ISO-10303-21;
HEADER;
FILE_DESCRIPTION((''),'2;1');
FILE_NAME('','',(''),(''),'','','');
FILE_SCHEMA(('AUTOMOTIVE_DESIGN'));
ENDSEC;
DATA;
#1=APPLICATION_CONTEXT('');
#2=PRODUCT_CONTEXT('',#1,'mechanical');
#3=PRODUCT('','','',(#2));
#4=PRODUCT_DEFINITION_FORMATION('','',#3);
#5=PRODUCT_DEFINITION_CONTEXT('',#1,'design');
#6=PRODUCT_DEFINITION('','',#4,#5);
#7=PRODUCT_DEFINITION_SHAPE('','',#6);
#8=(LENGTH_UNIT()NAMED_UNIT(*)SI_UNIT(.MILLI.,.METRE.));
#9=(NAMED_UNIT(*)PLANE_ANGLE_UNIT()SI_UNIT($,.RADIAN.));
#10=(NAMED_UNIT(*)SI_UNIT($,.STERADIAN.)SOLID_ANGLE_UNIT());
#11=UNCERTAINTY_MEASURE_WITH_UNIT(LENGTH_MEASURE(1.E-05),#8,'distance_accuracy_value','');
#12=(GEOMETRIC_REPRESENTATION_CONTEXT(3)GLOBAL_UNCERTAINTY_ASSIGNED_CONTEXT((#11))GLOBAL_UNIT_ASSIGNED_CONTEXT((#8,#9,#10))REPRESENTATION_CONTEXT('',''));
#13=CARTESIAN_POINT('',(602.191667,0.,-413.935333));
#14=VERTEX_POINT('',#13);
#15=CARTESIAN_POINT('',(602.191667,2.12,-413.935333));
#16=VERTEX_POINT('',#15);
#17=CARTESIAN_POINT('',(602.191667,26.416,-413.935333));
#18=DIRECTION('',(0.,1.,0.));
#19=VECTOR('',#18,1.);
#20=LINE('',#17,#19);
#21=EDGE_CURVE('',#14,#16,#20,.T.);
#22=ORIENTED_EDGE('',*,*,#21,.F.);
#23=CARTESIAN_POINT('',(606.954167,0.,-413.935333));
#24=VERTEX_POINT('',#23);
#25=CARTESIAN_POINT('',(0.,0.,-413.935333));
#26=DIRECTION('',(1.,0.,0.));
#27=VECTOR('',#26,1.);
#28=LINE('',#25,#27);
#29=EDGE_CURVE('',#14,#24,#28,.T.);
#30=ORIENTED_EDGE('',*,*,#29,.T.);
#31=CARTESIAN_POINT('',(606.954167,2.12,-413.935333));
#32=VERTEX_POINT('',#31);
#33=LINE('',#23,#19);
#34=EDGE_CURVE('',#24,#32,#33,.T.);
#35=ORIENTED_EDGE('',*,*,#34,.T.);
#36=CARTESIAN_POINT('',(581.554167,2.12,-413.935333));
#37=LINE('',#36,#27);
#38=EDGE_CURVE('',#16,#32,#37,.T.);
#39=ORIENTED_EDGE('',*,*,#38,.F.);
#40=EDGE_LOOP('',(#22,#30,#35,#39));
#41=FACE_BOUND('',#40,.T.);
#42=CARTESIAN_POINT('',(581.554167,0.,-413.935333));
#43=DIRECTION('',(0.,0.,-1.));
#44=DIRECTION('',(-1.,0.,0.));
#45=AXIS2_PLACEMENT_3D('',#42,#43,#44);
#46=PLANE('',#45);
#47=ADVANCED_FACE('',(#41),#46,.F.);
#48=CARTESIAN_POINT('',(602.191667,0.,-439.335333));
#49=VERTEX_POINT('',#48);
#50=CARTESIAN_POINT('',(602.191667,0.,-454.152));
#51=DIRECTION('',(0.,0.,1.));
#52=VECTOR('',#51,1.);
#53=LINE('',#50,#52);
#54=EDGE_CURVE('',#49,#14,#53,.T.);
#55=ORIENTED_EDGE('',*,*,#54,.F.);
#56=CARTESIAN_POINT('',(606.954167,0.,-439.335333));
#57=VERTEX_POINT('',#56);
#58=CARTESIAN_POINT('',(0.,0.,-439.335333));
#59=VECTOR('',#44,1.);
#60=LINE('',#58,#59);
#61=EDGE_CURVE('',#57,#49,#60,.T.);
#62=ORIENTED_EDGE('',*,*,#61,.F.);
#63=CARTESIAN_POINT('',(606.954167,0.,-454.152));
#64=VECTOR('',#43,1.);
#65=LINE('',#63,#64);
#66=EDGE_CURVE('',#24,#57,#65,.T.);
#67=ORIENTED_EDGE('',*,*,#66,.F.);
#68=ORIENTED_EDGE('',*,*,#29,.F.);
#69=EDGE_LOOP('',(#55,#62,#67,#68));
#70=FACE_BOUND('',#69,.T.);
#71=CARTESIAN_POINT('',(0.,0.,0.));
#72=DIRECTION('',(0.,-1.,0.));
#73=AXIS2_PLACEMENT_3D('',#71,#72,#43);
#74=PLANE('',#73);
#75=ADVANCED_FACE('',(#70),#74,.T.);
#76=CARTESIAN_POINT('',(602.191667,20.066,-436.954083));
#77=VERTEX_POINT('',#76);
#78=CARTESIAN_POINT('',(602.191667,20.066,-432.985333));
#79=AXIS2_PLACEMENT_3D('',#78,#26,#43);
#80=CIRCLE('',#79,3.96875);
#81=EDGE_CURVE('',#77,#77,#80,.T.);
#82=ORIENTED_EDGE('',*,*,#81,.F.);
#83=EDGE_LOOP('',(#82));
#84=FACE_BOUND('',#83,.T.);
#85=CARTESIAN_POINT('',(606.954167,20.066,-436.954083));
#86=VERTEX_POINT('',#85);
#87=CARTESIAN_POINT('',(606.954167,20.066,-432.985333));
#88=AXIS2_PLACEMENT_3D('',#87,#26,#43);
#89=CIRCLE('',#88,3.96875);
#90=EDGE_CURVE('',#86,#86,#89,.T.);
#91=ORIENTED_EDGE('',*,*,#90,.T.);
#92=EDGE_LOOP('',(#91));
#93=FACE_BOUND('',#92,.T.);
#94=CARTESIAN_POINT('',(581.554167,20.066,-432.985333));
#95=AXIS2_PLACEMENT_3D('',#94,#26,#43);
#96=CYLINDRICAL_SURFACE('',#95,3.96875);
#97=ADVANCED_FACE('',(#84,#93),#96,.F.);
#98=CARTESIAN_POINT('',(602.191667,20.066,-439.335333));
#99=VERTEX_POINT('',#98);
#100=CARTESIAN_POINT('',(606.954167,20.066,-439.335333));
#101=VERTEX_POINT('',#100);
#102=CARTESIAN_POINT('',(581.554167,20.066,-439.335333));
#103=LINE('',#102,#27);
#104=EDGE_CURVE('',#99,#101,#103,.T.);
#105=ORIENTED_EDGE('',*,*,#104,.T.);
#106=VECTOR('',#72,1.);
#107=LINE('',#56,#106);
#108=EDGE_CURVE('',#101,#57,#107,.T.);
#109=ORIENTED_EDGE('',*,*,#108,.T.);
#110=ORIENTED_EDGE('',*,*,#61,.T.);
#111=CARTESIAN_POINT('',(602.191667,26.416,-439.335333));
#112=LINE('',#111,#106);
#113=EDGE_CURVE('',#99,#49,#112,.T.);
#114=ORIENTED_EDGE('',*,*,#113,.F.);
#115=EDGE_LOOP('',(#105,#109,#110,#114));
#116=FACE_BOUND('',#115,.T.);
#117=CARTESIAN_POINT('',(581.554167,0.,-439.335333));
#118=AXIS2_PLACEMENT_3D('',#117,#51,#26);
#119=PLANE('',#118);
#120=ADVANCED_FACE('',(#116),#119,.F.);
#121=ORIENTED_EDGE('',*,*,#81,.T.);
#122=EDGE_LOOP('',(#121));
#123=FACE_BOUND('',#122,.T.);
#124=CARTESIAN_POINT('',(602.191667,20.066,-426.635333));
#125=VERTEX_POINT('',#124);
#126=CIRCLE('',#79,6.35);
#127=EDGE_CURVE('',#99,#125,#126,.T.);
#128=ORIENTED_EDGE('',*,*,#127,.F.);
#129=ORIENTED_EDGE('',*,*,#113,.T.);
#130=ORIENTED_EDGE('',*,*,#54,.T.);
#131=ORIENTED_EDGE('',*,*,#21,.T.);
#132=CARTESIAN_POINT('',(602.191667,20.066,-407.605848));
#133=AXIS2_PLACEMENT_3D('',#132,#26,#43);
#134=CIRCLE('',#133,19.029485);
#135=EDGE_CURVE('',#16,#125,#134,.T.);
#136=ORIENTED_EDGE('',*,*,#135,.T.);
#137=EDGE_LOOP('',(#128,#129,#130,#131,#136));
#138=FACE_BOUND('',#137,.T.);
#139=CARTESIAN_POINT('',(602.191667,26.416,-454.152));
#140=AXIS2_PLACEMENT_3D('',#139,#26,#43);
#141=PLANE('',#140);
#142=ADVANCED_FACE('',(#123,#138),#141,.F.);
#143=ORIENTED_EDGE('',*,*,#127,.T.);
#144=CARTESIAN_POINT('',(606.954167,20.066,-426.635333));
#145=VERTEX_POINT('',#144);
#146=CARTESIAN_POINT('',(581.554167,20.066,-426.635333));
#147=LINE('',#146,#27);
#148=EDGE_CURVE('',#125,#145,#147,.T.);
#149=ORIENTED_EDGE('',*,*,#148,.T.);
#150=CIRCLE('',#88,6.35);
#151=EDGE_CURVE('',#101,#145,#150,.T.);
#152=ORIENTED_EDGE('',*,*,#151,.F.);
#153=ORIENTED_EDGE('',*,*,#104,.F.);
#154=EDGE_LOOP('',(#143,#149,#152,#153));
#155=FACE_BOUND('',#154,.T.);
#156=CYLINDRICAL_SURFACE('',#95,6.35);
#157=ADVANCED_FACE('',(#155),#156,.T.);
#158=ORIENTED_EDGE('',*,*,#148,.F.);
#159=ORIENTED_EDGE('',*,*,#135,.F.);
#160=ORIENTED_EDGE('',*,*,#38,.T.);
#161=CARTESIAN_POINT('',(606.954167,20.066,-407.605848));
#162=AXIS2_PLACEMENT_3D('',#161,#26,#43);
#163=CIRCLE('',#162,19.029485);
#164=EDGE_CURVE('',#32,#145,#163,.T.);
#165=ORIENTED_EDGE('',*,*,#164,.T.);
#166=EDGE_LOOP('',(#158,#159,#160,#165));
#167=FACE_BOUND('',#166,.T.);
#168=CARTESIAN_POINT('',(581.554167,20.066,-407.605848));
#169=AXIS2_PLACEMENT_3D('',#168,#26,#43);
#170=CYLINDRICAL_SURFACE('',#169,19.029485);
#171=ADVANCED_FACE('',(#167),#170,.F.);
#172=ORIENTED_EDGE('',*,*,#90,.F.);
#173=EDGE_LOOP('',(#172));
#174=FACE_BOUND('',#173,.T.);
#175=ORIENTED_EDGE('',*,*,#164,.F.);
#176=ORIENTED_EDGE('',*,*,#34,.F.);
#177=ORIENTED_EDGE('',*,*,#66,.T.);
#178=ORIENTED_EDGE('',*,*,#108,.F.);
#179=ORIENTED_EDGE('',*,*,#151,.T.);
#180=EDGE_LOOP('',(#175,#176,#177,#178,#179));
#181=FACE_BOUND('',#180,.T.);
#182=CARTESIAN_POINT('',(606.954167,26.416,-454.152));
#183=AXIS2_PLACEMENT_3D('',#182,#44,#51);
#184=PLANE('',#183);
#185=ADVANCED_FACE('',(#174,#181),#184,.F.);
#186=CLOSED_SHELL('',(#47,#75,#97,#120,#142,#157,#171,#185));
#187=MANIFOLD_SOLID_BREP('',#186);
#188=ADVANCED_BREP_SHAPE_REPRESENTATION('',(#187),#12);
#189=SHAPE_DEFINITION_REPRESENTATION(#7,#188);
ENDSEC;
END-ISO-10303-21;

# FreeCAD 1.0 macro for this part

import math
import FreeCAD as App
import Part
import Sketcher

V = App.Vector
Q = App.Units.Quantity


def add_polygon(sketch, points):
    """Adds a closed chain of lines whose ends are joined by coincident constraints."""
    first, n = sketch.GeometryCount, len(points)
    for a, b in zip(points, points[1:] + points[:1]):
        sketch.addGeometry(Part.LineSegment(App.Vector(*a, 0), App.Vector(*b, 0)), False)
    for i in range(n):
        sketch.addConstraint(Sketcher.Constraint("Coincident", first + i, 2, first + (i + 1) % n, 1))

doc = App.newDocument("Part")
params = doc.addObject("Spreadsheet::Sheet", "Params")
for row, (alias, value) in enumerate([
    ("sketch1_width", "0.1875 in"),
    ("pad1_length", "1.04 in"),
    ("sketch2_radius", "0.25 in"),
    ("sketch2_diameter", "0.3125 in"),
    ("sketch2_width", "1.04 in"),
    ("pocket1_length", "1 in"),
], start=1):
    params.set(f"A{row}", alias)
    params.set(f"B{row}", "=" + value)
    params.setAlias(f"B{row}", alias)

body = doc.addObject("PartDesign::Body", "Body")

# Sketch on XZ plane
sketch1 = doc.addObject("Sketcher::SketchObject", "Sketch")
body.addObject(sketch1)
sketch1.AttachmentSupport = (doc.XZ_Plane, [""])
sketch1.MapMode = "FlatFace"
add_polygon(sketch1, [(602.191667, -454.152), (602.191667, -411.818667), (606.954167, -411.818667), (606.954167, -454.152)])  # lines 0-3
sketch1.addConstraint([
    Sketcher.Constraint("Vertical", 0),
    Sketcher.Constraint("Horizontal", 1),
    Sketcher.Constraint("Vertical", 2),
    Sketcher.Constraint("Horizontal", 3),
    Sketcher.Constraint("DistanceX", 1, 1, 1, 2, Q("0.1875 in")),
    Sketcher.Constraint("DistanceY", 2, 2, -1, 1, Q("17.88 in")),
    Sketcher.Constraint("DistanceY", 0, 1, 0, 2, 42.333333),
    Sketcher.Constraint("DistanceX", -1, 1, 0, 2, 602.191667),
])
sketch1.setExpression("Constraints[8]", "Params.sketch1_width")
pad1 = doc.addObject("PartDesign::Pad", "Pad")
body.addObject(pad1)
pad1.Profile = sketch1
pad1.setExpression("Length", "Params.pad1_length")
pad1.Reversed = True

# Sketch on YZ plane
sketch2 = doc.addObject("Sketcher::SketchObject", "Sketch001")
body.addObject(sketch2)
sketch2.AttachmentSupport = (doc.YZ_Plane, [""])
sketch2.MapMode = "FlatFace"
sketch2.AttachmentOffset = App.Placement(V(0, 0, 606.954167), App.Rotation())
sketch2.addGeometry([
    Part.ArcOfCircle(Part.Circle(V(20.066, -432.985333, 0), V(0, 0, 1), 6.35), math.radians(0), math.radians(90)),  # 0
    Part.LineSegment(V(26.416, -432.985333, 0), V(26.416, -411.818667, 0)),  # 1
    Part.LineSegment(V(26.416, -411.818667, 0), V(0, -411.818667, 0)),  # 2
    Part.LineSegment(V(0, -411.818667, 0), V(0, -413.935333, 0)),  # 3
    Part.LineSegment(V(0, -413.935333, 0), V(2.12, -413.935333, 0)),  # 4
    Part.ArcOfCircle(Part.Circle(V(20.066, -407.605848, 0), V(0, 0, 1), 19.029485), math.radians(-160.572451), math.radians(-90)),  # 5
    Part.ArcOfCircle(Part.Circle(V(20.066, -432.985333, 0), V(0, 0, 1), 6.35), math.radians(-90), math.radians(0)),  # 6
    Part.LineSegment(V(20.066, -439.335333, 0), V(0, -439.335333, 0)),  # 7
    Part.LineSegment(V(0, -439.335333, 0), V(0, -454.152, 0)),  # 8
    Part.LineSegment(V(0, -454.152, 0), V(26.416, -454.152, 0)),  # 9
    Part.LineSegment(V(26.416, -454.152, 0), V(26.416, -432.985333, 0)),  # 10
    Part.Circle(V(20.066, -432.985333, 0), V(0, 0, 1), 3.96875),  # 11
], False)
sketch2.addConstraint([
    Sketcher.Constraint("Tangent", 0, 1, 1, 1),
    Sketcher.Constraint("Coincident", 1, 2, 2, 1),
    Sketcher.Constraint("Coincident", 2, 2, 3, 1),
    Sketcher.Constraint("Coincident", 3, 2, 4, 1),
    Sketcher.Constraint("Coincident", 4, 2, 5, 1),
    Sketcher.Constraint("Tangent", 5, 2, 0, 2),
    Sketcher.Constraint("Tangent", 6, 1, 7, 1),
    Sketcher.Constraint("Coincident", 7, 2, 8, 1),
    Sketcher.Constraint("Coincident", 8, 2, 9, 1),
    Sketcher.Constraint("Coincident", 9, 2, 10, 1),
    Sketcher.Constraint("Tangent", 10, 2, 6, 2),
    Sketcher.Constraint("Vertical", 1),
    Sketcher.Constraint("Horizontal", 2),
    Sketcher.Constraint("Vertical", 3),
    Sketcher.Constraint("Horizontal", 4),
    Sketcher.Constraint("Horizontal", 7),
    Sketcher.Constraint("Vertical", 8),
    Sketcher.Constraint("Horizontal", 9),
    Sketcher.Constraint("Vertical", 10),
    Sketcher.Constraint("Coincident", 6, 3, 0, 3),
    Sketcher.Constraint("Coincident", 11, 3, 0, 3),
    Sketcher.Constraint("Equal", 0, 6),
    Sketcher.Constraint("PointOnObject", 2, 2, -2),
    Sketcher.Constraint("PointOnObject", 7, 2, -2),
    Sketcher.Constraint("Vertical", 0, 3, 5, 3),
    Sketcher.Constraint("Equal", 1, 10),
    Sketcher.Constraint("Radius", 0, Q("0.25 in")),
    Sketcher.Constraint("Diameter", 11, Q("0.3125 in")),
    Sketcher.Constraint("DistanceX", 2, 2, 2, 1, Q("1.04 in")),
    Sketcher.Constraint("DistanceY", 8, 2, -1, 1, Q("17.88 in")),
    Sketcher.Constraint("DistanceY", 0, 3, 3, 2, Q("0.75 in")),
    Sketcher.Constraint("DistanceX", 4, 1, 4, 2, 2.12),
    Sketcher.Constraint("DistanceY", 1, 1, 1, 2, 21.166667),
])
sketch2.setExpression("Constraints[26]", "Params.sketch2_radius")
sketch2.setExpression("Constraints[27]", "Params.sketch2_diameter")
sketch2.setExpression("Constraints[28]", "Params.sketch2_width")
pocket1 = doc.addObject("PartDesign::Pocket", "Pocket")
body.addObject(pocket1)
pocket1.Profile = sketch2
pocket1.setExpression("Length", "Params.pocket1_length")

doc.recompute()
